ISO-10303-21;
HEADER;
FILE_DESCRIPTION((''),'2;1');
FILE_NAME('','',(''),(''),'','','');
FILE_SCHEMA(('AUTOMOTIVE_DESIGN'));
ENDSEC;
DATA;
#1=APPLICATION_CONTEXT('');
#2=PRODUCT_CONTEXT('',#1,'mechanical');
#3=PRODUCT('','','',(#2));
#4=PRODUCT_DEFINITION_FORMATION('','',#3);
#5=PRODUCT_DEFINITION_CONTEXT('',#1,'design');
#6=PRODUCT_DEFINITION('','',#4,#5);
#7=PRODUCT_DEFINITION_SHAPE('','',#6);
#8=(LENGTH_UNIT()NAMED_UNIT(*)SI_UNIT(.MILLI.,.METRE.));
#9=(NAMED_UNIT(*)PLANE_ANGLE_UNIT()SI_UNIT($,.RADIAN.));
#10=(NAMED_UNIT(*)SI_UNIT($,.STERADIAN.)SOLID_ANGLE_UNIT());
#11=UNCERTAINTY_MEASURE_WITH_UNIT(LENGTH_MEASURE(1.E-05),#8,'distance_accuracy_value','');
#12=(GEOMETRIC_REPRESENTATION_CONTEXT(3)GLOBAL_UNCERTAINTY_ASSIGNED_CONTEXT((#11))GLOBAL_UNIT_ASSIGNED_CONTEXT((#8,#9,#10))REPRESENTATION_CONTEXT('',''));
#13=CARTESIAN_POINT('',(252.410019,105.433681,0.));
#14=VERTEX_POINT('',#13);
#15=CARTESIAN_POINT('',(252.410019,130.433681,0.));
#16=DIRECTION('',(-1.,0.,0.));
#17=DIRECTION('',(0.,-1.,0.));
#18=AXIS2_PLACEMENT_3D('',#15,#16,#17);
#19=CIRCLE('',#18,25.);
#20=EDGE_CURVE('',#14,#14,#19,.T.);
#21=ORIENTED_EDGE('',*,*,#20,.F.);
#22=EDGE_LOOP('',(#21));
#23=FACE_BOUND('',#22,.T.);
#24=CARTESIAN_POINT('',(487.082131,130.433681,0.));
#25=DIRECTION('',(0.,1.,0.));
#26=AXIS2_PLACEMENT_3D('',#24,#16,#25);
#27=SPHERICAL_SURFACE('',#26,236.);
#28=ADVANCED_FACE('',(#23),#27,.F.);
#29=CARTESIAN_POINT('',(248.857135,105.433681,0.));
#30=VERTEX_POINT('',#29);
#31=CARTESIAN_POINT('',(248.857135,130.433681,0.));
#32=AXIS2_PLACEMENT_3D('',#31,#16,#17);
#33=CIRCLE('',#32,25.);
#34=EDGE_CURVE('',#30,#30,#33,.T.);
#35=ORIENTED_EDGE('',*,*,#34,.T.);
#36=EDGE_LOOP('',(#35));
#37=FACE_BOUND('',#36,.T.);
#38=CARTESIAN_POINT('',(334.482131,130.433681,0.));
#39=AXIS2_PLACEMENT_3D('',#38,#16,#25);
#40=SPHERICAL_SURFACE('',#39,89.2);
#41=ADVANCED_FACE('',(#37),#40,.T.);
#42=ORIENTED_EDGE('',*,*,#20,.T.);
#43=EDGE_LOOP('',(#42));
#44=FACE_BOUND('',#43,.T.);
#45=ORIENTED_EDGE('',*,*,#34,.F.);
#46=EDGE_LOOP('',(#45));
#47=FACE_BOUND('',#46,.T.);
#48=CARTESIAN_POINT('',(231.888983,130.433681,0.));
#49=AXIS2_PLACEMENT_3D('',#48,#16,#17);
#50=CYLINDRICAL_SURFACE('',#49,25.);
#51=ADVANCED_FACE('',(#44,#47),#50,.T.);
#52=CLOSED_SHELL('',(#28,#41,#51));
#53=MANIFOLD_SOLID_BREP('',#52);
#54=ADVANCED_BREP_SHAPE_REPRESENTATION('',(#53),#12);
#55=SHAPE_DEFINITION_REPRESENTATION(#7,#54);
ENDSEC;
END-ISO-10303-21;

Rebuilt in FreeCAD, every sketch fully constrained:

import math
import FreeCAD as App
import Part
import Sketcher
Q = App.Units.Quantity

doc = App.newDocument("Part")
params = doc.addObject("Spreadsheet::Sheet", "Params")
for row, (alias, value) in enumerate([
    ("sketch1_radius", "236 mm"),
    ("sketch1_radius2", "89.2 mm"),
    ("sketch1_width", "5.8 mm"),
    ("revolution_angle", "360 deg"),
], start=1):
    params.set(f"A{row}", alias)
    params.set(f"B{row}", "=" + value)
    params.setAlias(f"B{row}", alias)

body = doc.addObject("PartDesign::Body", "Body")

sketch1 = doc.addObject("Sketcher::SketchObject", "Sketch")
body.addObject(sketch1)
sketch1.AttachmentSupport = (doc.XY_Plane, [""])
sketch1.MapMode = "FlatFace"
sketch1.addGeometry([
    Part.LineSegment(App.Vector(252.4, 155.4, 0), App.Vector(248.9, 155.4, 0)),
    Part.ArcOfCircle(Part.Circle(App.Vector(334.5, 130.4, 0), App.Vector(0, 0, 1), 89.2), math.radians(163.72), math.radians(180)),
    Part.LineSegment(App.Vector(245.3, 130.4, 0), App.Vector(251.1, 130.4, 0)),
    Part.ArcOfCircle(Part.Circle(App.Vector(487.1, 130.4, 0), App.Vector(0, 0, 1), 236), math.radians(173.92), math.radians(180)),
], False)
sketch1.addGeometry(Part.LineSegment(App.Vector(245.3, 130.4, 0), App.Vector(487.1, 130.4, 0)), True)
sketch1.addConstraint([
    Sketcher.Constraint("Coincident", 0, 2, 1, 1),
    Sketcher.Constraint("Coincident", 1, 2, 2, 1),
    Sketcher.Constraint("Coincident", 2, 2, 3, 2),
    Sketcher.Constraint("Coincident", 3, 1, 0, 1),
    Sketcher.Constraint("Horizontal", 0),
    Sketcher.Constraint("Horizontal", 2),
    Sketcher.Constraint("Horizontal", 4),
    Sketcher.Constraint("Coincident", 4, 1, 1, 2),
    Sketcher.Constraint("Coincident", 4, 2, 3, 3),
    Sketcher.Constraint("Horizontal", 1, 3, 3, 3),
    Sketcher.Constraint("Radius", 3, Q("236 mm")),
    Sketcher.Constraint("Radius", 1, Q("89.2 mm")),
    Sketcher.Constraint("DistanceX", 2, 1, 2, 2, Q("5.8 mm")),
    Sketcher.Constraint("DistanceY", 1, 3, 0, 2, Q("25 mm")),
    Sketcher.Constraint("DistanceX", -1, 1, 1, 3, Q("334.482131 mm")),
    Sketcher.Constraint("DistanceY", -1, 1, 1, 3, Q("130.433681 mm")),
])
sketch1.setExpression("Constraints[10]", "Params.sketch1_radius")
sketch1.setExpression("Constraints[11]", "Params.sketch1_radius2")
sketch1.setExpression("Constraints[12]", "Params.sketch1_width")
revolution = doc.addObject("PartDesign::Revolution", "Revolution")
body.addObject(revolution)
revolution.Profile = sketch1
revolution.ReferenceAxis = (sketch1, ["Axis0"])
revolution.setExpression("Angle", "Params.revolution_angle")

doc.recompute()
